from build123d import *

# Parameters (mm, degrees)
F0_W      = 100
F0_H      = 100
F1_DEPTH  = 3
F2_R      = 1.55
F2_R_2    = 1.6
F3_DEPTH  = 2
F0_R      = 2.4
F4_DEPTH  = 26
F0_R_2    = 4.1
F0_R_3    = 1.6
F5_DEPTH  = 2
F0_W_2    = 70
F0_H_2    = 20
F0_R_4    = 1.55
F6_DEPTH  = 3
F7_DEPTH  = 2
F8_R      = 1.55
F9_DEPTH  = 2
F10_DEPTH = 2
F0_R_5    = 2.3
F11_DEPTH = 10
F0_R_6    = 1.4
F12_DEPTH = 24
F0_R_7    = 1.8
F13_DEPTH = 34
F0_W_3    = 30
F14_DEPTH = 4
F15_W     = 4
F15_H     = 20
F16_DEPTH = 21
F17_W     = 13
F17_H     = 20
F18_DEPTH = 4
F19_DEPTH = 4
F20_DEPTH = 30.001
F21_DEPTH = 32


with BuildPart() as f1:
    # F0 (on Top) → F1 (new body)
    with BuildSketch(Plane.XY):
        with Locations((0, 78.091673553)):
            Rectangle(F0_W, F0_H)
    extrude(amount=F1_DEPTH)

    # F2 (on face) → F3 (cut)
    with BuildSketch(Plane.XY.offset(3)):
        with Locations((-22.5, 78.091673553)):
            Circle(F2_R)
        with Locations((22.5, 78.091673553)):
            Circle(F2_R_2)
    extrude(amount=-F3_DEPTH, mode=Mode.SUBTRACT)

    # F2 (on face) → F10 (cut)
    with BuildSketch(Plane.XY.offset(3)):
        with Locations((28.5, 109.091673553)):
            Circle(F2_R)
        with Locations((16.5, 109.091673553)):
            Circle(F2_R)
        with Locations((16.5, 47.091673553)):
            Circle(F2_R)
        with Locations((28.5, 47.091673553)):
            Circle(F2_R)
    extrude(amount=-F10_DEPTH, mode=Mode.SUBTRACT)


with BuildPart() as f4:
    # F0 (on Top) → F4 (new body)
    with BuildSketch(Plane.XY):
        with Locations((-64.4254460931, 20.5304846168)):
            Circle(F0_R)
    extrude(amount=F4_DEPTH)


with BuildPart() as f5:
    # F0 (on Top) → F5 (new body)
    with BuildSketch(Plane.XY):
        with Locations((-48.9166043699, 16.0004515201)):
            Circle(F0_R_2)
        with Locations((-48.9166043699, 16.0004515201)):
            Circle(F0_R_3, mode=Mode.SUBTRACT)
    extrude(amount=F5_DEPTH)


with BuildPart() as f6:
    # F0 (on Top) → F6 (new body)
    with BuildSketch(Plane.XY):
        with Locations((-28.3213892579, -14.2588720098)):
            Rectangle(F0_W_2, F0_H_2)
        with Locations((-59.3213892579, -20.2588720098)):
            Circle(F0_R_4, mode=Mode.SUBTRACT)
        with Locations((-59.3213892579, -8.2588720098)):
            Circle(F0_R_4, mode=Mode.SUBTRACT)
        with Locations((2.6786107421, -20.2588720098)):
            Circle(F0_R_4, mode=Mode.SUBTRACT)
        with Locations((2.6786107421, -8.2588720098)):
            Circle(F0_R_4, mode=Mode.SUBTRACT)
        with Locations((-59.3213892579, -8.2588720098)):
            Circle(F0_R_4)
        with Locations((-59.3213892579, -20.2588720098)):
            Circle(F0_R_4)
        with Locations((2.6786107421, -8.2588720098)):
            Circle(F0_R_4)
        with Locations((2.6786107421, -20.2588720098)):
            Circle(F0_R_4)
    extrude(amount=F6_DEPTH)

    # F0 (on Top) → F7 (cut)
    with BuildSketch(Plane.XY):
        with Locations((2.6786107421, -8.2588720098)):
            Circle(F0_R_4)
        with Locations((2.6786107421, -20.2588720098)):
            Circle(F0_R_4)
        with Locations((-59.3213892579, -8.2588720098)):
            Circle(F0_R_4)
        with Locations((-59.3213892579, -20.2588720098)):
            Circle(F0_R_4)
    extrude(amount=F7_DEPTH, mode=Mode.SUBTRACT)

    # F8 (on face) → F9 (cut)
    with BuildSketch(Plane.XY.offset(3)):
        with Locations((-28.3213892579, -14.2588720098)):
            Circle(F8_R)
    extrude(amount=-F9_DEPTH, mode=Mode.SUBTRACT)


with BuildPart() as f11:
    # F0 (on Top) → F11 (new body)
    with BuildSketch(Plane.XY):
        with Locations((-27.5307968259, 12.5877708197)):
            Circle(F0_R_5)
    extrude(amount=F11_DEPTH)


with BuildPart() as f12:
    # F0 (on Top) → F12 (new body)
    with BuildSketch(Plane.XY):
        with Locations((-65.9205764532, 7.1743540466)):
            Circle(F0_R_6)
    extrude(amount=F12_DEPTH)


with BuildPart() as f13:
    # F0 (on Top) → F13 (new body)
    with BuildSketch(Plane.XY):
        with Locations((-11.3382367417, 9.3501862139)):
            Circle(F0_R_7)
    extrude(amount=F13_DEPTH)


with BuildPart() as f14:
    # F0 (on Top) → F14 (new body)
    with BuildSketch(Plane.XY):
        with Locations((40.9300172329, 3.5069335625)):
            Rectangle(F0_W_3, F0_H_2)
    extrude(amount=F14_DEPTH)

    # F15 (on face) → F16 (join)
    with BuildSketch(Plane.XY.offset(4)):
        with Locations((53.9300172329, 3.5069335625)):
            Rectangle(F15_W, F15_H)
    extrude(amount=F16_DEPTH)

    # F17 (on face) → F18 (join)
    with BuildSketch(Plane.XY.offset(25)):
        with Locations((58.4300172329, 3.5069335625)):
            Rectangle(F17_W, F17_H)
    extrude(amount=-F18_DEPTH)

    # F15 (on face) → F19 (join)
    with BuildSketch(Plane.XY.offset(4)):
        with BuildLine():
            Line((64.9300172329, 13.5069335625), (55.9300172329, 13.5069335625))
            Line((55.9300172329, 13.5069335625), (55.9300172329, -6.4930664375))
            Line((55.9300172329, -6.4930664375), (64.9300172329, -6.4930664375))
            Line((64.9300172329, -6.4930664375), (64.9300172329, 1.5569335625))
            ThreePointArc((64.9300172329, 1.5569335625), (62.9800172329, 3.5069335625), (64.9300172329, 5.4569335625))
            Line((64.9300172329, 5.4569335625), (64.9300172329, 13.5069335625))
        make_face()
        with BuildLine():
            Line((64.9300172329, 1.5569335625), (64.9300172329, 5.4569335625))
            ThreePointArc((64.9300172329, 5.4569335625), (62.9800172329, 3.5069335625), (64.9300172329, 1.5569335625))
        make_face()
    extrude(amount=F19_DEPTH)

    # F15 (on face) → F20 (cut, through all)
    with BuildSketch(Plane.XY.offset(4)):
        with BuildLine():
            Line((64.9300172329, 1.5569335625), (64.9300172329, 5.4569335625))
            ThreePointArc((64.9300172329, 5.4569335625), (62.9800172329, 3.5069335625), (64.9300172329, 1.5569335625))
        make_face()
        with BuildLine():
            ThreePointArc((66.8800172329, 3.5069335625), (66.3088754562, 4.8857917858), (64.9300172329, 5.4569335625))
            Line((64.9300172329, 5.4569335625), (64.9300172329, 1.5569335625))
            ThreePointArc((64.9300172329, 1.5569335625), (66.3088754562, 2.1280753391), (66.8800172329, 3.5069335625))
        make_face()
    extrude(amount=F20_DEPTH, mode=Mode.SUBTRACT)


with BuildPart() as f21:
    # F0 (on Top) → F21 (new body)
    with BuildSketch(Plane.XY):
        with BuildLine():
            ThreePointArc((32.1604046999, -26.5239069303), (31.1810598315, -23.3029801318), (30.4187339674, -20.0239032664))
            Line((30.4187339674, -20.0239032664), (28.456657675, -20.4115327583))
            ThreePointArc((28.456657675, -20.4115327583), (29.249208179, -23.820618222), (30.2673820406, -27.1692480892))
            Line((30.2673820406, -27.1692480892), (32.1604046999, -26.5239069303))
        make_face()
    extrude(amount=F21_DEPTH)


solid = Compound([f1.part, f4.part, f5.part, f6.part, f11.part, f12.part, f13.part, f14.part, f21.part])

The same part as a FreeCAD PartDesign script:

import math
import FreeCAD as App
import Part
import Sketcher
from FreeCAD import Vector

doc = App.newDocument("Part")
body = doc.addObject("PartDesign::Body", "Body")

# Sketch on XY plane
sketch1 = body.newObject("Sketcher::SketchObject", "Sketch")
sketch1.AttachmentSupport = (doc.getObject("XY_Plane"), [""])
sketch1.MapMode = "FlatFace"
sketch1.addGeometry([
    Part.LineSegment(Vector(-50, 128, 0), Vector(-50, 28, 0)),
    Part.LineSegment(Vector(-50, 28, 0), Vector(50, 28, 0)),
    Part.LineSegment(Vector(50, 28, 0), Vector(50, 128, 0)),
    Part.LineSegment(Vector(50, 128, 0), Vector(-50, 128, 0)),
], False)
sketch1.addConstraint([
    Sketcher.Constraint("Coincident", 0, 2, 1, 1),
    Sketcher.Constraint("Coincident", 1, 2, 2, 1),
    Sketcher.Constraint("Coincident", 2, 2, 3, 1),
    Sketcher.Constraint("Coincident", 3, 2, 0, 1),
    Sketcher.Constraint("Vertical", 0),
    Sketcher.Constraint("Horizontal", 1),
    Sketcher.Constraint("Vertical", 2),
    Sketcher.Constraint("Horizontal", 3),
    Sketcher.Constraint("Equal", 3, 0),
    Sketcher.Constraint("DistanceX", 1, 1, 1, 2, 100.0),
    Sketcher.Constraint("DistanceX", 0, 2, -1, 1, 50.0),
    Sketcher.Constraint("DistanceY", -1, 1, 0, 2, 28.091674),
])
pad1 = body.newObject("PartDesign::Pad", "Pad")
pad1.Profile = sketch1
pad1.Length = 3

# Sketch on XY plane
sketch2 = body.newObject("Sketcher::SketchObject", "Sketch001")
sketch2.AttachmentSupport = (doc.getObject("XY_Plane"), [""])
sketch2.MapMode = "FlatFace"
sketch2.AttachmentOffset = App.Placement(Vector(0, 0, 3), App.Rotation())
sketch2.addGeometry([
    Part.Circle(Vector(-22.5, 78.1, 0), Vector(0, 0, 1), 1.6),
    Part.Circle(Vector(22.5, 78.1, 0), Vector(0, 0, 1), 1.6),
], False)
sketch2.addConstraint([
    Sketcher.Constraint("Symmetric", 0, 3, 1, 3, -2),
    Sketcher.Constraint("Diameter", 0, 3.1),
    Sketcher.Constraint("Diameter", 1, 3.2),
    Sketcher.Constraint("DistanceX", 0, 3, 1, 3, 45.0),
    Sketcher.Constraint("DistanceY", -1, 1, 0, 3, 78.091674),
])
pocket1 = body.newObject("PartDesign::Pocket", "Pocket")
pocket1.Profile = sketch2
pocket1.Length = 2

# Sketch on XY plane
sketch3 = body.newObject("Sketcher::SketchObject", "Sketch002")
sketch3.AttachmentSupport = (doc.getObject("XY_Plane"), [""])
sketch3.MapMode = "FlatFace"
sketch3.AttachmentOffset = App.Placement(Vector(0, 0, 3), App.Rotation())
sketch3.addGeometry([
    Part.Circle(Vector(28.5, 109.1, 0), Vector(0, 0, 1), 1.6),
    Part.Circle(Vector(16.5, 109.1, 0), Vector(0, 0, 1), 1.6),
    Part.Circle(Vector(16.5, 47.1, 0), Vector(0, 0, 1), 1.6),
    Part.Circle(Vector(28.5, 47.1, 0), Vector(0, 0, 1), 1.6),
], False)
sketch3.addConstraint([
    Sketcher.Constraint("Equal", 0, 1),
    Sketcher.Constraint("Equal", 1, 2),
    Sketcher.Constraint("Equal", 2, 3),
    Sketcher.Constraint("Horizontal", 0, 3, 1, 3),
    Sketcher.Constraint("Horizontal", 2, 3, 3, 3),
    Sketcher.Constraint("Vertical", 1, 3, 2, 3),
    Sketcher.Constraint("Vertical", 0, 3, 3, 3),
    Sketcher.Constraint("Diameter", 0, 3.1),
    Sketcher.Constraint("DistanceX", 1, 3, 0, 3, 12.0),
    Sketcher.Constraint("DistanceY", 2, 3, 1, 3, 62.0),
    Sketcher.Constraint("DistanceX", -1, 1, 0, 3, 28.5),
    Sketcher.Constraint("DistanceY", -1, 1, 0, 3, 109.091674),
])
pocket2 = body.newObject("PartDesign::Pocket", "Pocket001")
pocket2.Profile = sketch3
pocket2.Length = 2
body2 = doc.addObject("PartDesign::Body", "Body001")

# Sketch on XY plane
sketch4 = body2.newObject("Sketcher::SketchObject", "Sketch003")
sketch4.AttachmentSupport = (doc.getObject("XY_Plane001"), [""])
sketch4.MapMode = "FlatFace"
sketch4.addGeometry(Part.Circle(Vector(-64.4, 20.5, 0), Vector(0, 0, 1), 2.4), False)
sketch4.addConstraint([
    Sketcher.Constraint("Diameter", 0, 4.8),
    Sketcher.Constraint("DistanceX", 0, 3, -1, 1, 64.425446),
    Sketcher.Constraint("DistanceY", -1, 1, 0, 3, 20.530485),
])
pad2 = body2.newObject("PartDesign::Pad", "Pad001")
pad2.Profile = sketch4
pad2.Length = 26
body3 = doc.addObject("PartDesign::Body", "Body002")

# Sketch on XY plane
sketch5 = body3.newObject("Sketcher::SketchObject", "Sketch004")
sketch5.AttachmentSupport = (doc.getObject("XY_Plane002"), [""])
sketch5.MapMode = "FlatFace"
sketch5.addGeometry([
    Part.Circle(Vector(-48.9, 16, 0), Vector(0, 0, 1), 4.1),
    Part.Circle(Vector(-48.9, 16, 0), Vector(0, 0, 1), 1.6),
], False)
sketch5.addConstraint([
    Sketcher.Constraint("Coincident", 1, 3, 0, 3),
    Sketcher.Constraint("Diameter", 0, 8.2),
    Sketcher.Constraint("Diameter", 1, 3.2),
    Sketcher.Constraint("DistanceY", -1, 1, 0, 3, 16.000452),
    Sketcher.Constraint("DistanceX", 0, 3, -1, 1, 48.916604),
])
pad3 = body3.newObject("PartDesign::Pad", "Pad002")
pad3.Profile = sketch5
pad3.Length = 2
body4 = doc.addObject("PartDesign::Body", "Body003")

# Sketch on XY plane
sketch6 = body4.newObject("Sketcher::SketchObject", "Sketch005")
sketch6.AttachmentSupport = (doc.getObject("XY_Plane003"), [""])
sketch6.MapMode = "FlatFace"
sketch6.addGeometry([
    Part.LineSegment(Vector(-63, -4, 0), Vector(-63, -24, 0)),
    Part.LineSegment(Vector(-63, -24, 0), Vector(7, -24, 0)),
    Part.LineSegment(Vector(7, -24, 0), Vector(7, -4, 0)),
    Part.LineSegment(Vector(7, -4, 0), Vector(-63, -4, 0)),
], False)
sketch6.addConstraint([
    Sketcher.Constraint("Coincident", 0, 2, 1, 1),
    Sketcher.Constraint("Coincident", 1, 2, 2, 1),
    Sketcher.Constraint("Coincident", 2, 2, 3, 1),
    Sketcher.Constraint("Coincident", 3, 2, 0, 1),
    Sketcher.Constraint("Vertical", 0),
    Sketcher.Constraint("Horizontal", 1),
    Sketcher.Constraint("Vertical", 2),
    Sketcher.Constraint("Horizontal", 3),
    Sketcher.Constraint("DistanceX", 1, 1, 1, 2, 70.0),
    Sketcher.Constraint("DistanceY", 0, 2, 0, 1, 20.0),
    Sketcher.Constraint("DistanceX", 0, 2, -1, 1, 63.321389),
    Sketcher.Constraint("DistanceY", 0, 2, -1, 1, 24.258872),
])
pad4 = body4.newObject("PartDesign::Pad", "Pad003")
pad4.Profile = sketch6
pad4.Length = 3

# Sketch on XY plane
sketch7 = body4.newObject("Sketcher::SketchObject", "Sketch006")
sketch7.AttachmentSupport = (doc.getObject("XY_Plane003"), [""])
sketch7.MapMode = "FlatFace"
sketch7.addGeometry([
    Part.Circle(Vector(2.7, -8.3, 0), Vector(0, 0, 1), 1.6),
    Part.Circle(Vector(2.7, -20.3, 0), Vector(0, 0, 1), 1.6),
    Part.Circle(Vector(-59.3, -8.3, 0), Vector(0, 0, 1), 1.6),
    Part.Circle(Vector(-59.3, -20.3, 0), Vector(0, 0, 1), 1.6),
], False)
sketch7.addConstraint([
    Sketcher.Constraint("Equal", 0, 1),
    Sketcher.Constraint("Equal", 1, 2),
    Sketcher.Constraint("Equal", 2, 3),
    Sketcher.Constraint("Horizontal", 0, 3, 2, 3),
    Sketcher.Constraint("Horizontal", 1, 3, 3, 3),
    Sketcher.Constraint("Vertical", 0, 3, 1, 3),
    Sketcher.Constraint("Vertical", 2, 3, 3, 3),
    Sketcher.Constraint("Diameter", 0, 3.1),
    Sketcher.Constraint("DistanceY", 1, 3, 0, 3, 12.0),
    Sketcher.Constraint("DistanceX", 2, 3, 0, 3, 62.0),
    Sketcher.Constraint("DistanceX", -1, 1, 0, 3, 2.678611),
    Sketcher.Constraint("DistanceY", 0, 3, -1, 1, 8.258872),
])
pocket3 = body4.newObject("PartDesign::Pocket", "Pocket002")
pocket3.Profile = sketch7
pocket3.Length = 2
pocket3.Reversed = True

# Sketch on XY plane
sketch8 = body4.newObject("Sketcher::SketchObject", "Sketch007")
sketch8.AttachmentSupport = (doc.getObject("XY_Plane003"), [""])
sketch8.MapMode = "FlatFace"
sketch8.AttachmentOffset = App.Placement(Vector(0, 0, 3), App.Rotation())
sketch8.addGeometry(Part.Circle(Vector(-28.3, -14.3, 0), Vector(0, 0, 1), 1.6), False)
sketch8.addConstraint([
    Sketcher.Constraint("Diameter", 0, 3.1),
    Sketcher.Constraint("DistanceX", 0, 3, -1, 1, 28.321389),
    Sketcher.Constraint("DistanceY", 0, 3, -1, 1, 14.258872),
])
pocket4 = body4.newObject("PartDesign::Pocket", "Pocket003")
pocket4.Profile = sketch8
pocket4.Length = 2
body5 = doc.addObject("PartDesign::Body", "Body004")

# Sketch on XY plane
sketch9 = body5.newObject("Sketcher::SketchObject", "Sketch008")
sketch9.AttachmentSupport = (doc.getObject("XY_Plane004"), [""])
sketch9.MapMode = "FlatFace"
sketch9.addGeometry(Part.Circle(Vector(-27.5, 12.6, 0), Vector(0, 0, 1), 2.3), False)
sketch9.addConstraint([
    Sketcher.Constraint("Diameter", 0, 4.6),
    Sketcher.Constraint("DistanceY", -1, 1, 0, 3, 12.587771),
    Sketcher.Constraint("DistanceX", 0, 3, -1, 1, 27.530797),
])
pad5 = body5.newObject("PartDesign::Pad", "Pad004")
pad5.Profile = sketch9
pad5.Length = 10
body6 = doc.addObject("PartDesign::Body", "Body005")

# Sketch on XY plane
sketch10 = body6.newObject("Sketcher::SketchObject", "Sketch009")
sketch10.AttachmentSupport = (doc.getObject("XY_Plane005"), [""])
sketch10.MapMode = "FlatFace"
sketch10.addGeometry(Part.Circle(Vector(-65.9, 7.2, 0), Vector(0, 0, 1), 1.4), False)
sketch10.addConstraint([
    Sketcher.Constraint("Diameter", 0, 2.8),
    Sketcher.Constraint("DistanceX", 0, 3, -1, 1, 65.920576),
    Sketcher.Constraint("DistanceY", -1, 1, 0, 3, 7.174354),
])
pad6 = body6.newObject("PartDesign::Pad", "Pad005")
pad6.Profile = sketch10
pad6.Length = 24
body7 = doc.addObject("PartDesign::Body", "Body006")

# Sketch on XY plane
sketch11 = body7.newObject("Sketcher::SketchObject", "Sketch010")
sketch11.AttachmentSupport = (doc.getObject("XY_Plane006"), [""])
sketch11.MapMode = "FlatFace"
sketch11.addGeometry(Part.Circle(Vector(-11.3, 9.4, 0), Vector(0, 0, 1), 1.8), False)
sketch11.addConstraint([
    Sketcher.Constraint("Diameter", 0, 3.6),
    Sketcher.Constraint("DistanceX", 0, 3, -1, 1, 11.338237),
    Sketcher.Constraint("DistanceY", -1, 1, 0, 3, 9.350186),
])
pad7 = body7.newObject("PartDesign::Pad", "Pad006")
pad7.Profile = sketch11
pad7.Length = 34
body8 = doc.addObject("PartDesign::Body", "Body007")

# Sketch on XY plane
sketch12 = body8.newObject("Sketcher::SketchObject", "Sketch011")
sketch12.AttachmentSupport = (doc.getObject("XY_Plane007"), [""])
sketch12.MapMode = "FlatFace"
sketch12.addGeometry([
    Part.LineSegment(Vector(26, 14, 0), Vector(26, -6, 0)),
    Part.LineSegment(Vector(26, -6, 0), Vector(56, -6, 0)),
    Part.LineSegment(Vector(56, -6, 0), Vector(56, 14, 0)),
    Part.LineSegment(Vector(56, 14, 0), Vector(26, 14, 0)),
], False)
sketch12.addConstraint([
    Sketcher.Constraint("Coincident", 0, 2, 1, 1),
    Sketcher.Constraint("Coincident", 1, 2, 2, 1),
    Sketcher.Constraint("Coincident", 2, 2, 3, 1),
    Sketcher.Constraint("Coincident", 3, 2, 0, 1),
    Sketcher.Constraint("Vertical", 0),
    Sketcher.Constraint("Horizontal", 1),
    Sketcher.Constraint("Vertical", 2),
    Sketcher.Constraint("Horizontal", 3),
    Sketcher.Constraint("DistanceX", 1, 1, 1, 2, 30.0),
    Sketcher.Constraint("DistanceY", 0, 2, 0, 1, 20.0),
    Sketcher.Constraint("DistanceX", -1, 1, 0, 2, 25.930017),
    Sketcher.Constraint("DistanceY", 0, 2, -1, 1, 6.493066),
])
pad8 = body8.newObject("PartDesign::Pad", "Pad007")
pad8.Profile = sketch12
pad8.Length = 4

# Sketch on XY plane
sketch13 = body8.newObject("Sketcher::SketchObject", "Sketch012")
sketch13.AttachmentSupport = (doc.getObject("XY_Plane007"), [""])
sketch13.MapMode = "FlatFace"
sketch13.AttachmentOffset = App.Placement(Vector(0, 0, 4), App.Rotation())
sketch13.addGeometry([
    Part.LineSegment(Vector(51.9, 13.5, 0), Vector(51.9, -6.5, 0)),
    Part.LineSegment(Vector(51.9, -6.5, 0), Vector(55.9, -6.5, 0)),
    Part.LineSegment(Vector(55.9, -6.5, 0), Vector(55.9, 13.5, 0)),
    Part.LineSegment(Vector(55.9, 13.5, 0), Vector(51.9, 13.5, 0)),
], False)
sketch13.addConstraint([
    Sketcher.Constraint("Coincident", 0, 2, 1, 1),
    Sketcher.Constraint("Coincident", 1, 2, 2, 1),
    Sketcher.Constraint("Coincident", 2, 2, 3, 1),
    Sketcher.Constraint("Coincident", 3, 2, 0, 1),
    Sketcher.Constraint("Vertical", 0),
    Sketcher.Constraint("Horizontal", 1),
    Sketcher.Constraint("Vertical", 2),
    Sketcher.Constraint("Horizontal", 3),
    Sketcher.Constraint("DistanceX", 1, 1, 1, 2, 4.0),
    Sketcher.Constraint("DistanceY", 0, 2, 0, 1, 20.0),
    Sketcher.Constraint("DistanceX", -1, 1, 0, 2, 51.930017),
    Sketcher.Constraint("DistanceY", 0, 2, -1, 1, 6.493066),
])
pad9 = body8.newObject("PartDesign::Pad", "Pad008")
pad9.Profile = sketch13
pad9.Length = 21

# Sketch on XY plane
sketch14 = body8.newObject("Sketcher::SketchObject", "Sketch013")
sketch14.AttachmentSupport = (doc.getObject("XY_Plane007"), [""])
sketch14.MapMode = "FlatFace"
sketch14.AttachmentOffset = App.Placement(Vector(0, 0, 25), App.Rotation())
sketch14.addGeometry([
    Part.LineSegment(Vector(52, 14, 0), Vector(52, -6, 0)),
    Part.LineSegment(Vector(52, -6, 0), Vector(65, -6, 0)),
    Part.LineSegment(Vector(65, -6, 0), Vector(65, 14, 0)),
    Part.LineSegment(Vector(65, 14, 0), Vector(52, 14, 0)),
], False)
sketch14.addConstraint([
    Sketcher.Constraint("Coincident", 0, 2, 1, 1),
    Sketcher.Constraint("Coincident", 1, 2, 2, 1),
    Sketcher.Constraint("Coincident", 2, 2, 3, 1),
    Sketcher.Constraint("Coincident", 3, 2, 0, 1),
    Sketcher.Constraint("Vertical", 0),
    Sketcher.Constraint("Horizontal", 1),
    Sketcher.Constraint("Vertical", 2),
    Sketcher.Constraint("Horizontal", 3),
    Sketcher.Constraint("DistanceX", 1, 1, 1, 2, 13.0),
    Sketcher.Constraint("DistanceY", 0, 2, 0, 1, 20.0),
    Sketcher.Constraint("DistanceX", -1, 1, 0, 2, 51.930017),
    Sketcher.Constraint("DistanceY", 0, 2, -1, 1, 6.493066),
])
pad10 = body8.newObject("PartDesign::Pad", "Pad009")
pad10.Profile = sketch14
pad10.Length = 4
pad10.Reversed = True

# Sketch on XY plane
sketch15 = body8.newObject("Sketcher::SketchObject", "Sketch014")
sketch15.AttachmentSupport = (doc.getObject("XY_Plane007"), [""])
sketch15.MapMode = "FlatFace"
sketch15.AttachmentOffset = App.Placement(Vector(0, 0, 4), App.Rotation())
sketch15.addGeometry([
    Part.LineSegment(Vector(65, 14, 0), Vector(56, 14, 0)),
    Part.LineSegment(Vector(56, 14, 0), Vector(56, -6, 0)),
    Part.LineSegment(Vector(56, -6, 0), Vector(65, -6, 0)),
    Part.LineSegment(Vector(65, -6, 0), Vector(65, 14, 0)),
], False)
sketch15.addConstraint([
    Sketcher.Constraint("Coincident", 0, 2, 1, 1),
    Sketcher.Constraint("Coincident", 1, 2, 2, 1),
    Sketcher.Constraint("Coincident", 2, 2, 3, 1),
    Sketcher.Constraint("Coincident", 3, 2, 0, 1),
    Sketcher.Constraint("Horizontal", 0),
    Sketcher.Constraint("Vertical", 1),
    Sketcher.Constraint("Horizontal", 2),
    Sketcher.Constraint("Vertical", 3),
    Sketcher.Constraint("DistanceX", 0, 2, 0, 1, 9.0),
    Sketcher.Constraint("DistanceY", 1, 2, 1, 1, 20.0),
    Sketcher.Constraint("DistanceX", -1, 1, 0, 2, 55.930017),
    Sketcher.Constraint("DistanceY", -1, 1, 0, 2, 13.506934),
])
pad11 = body8.newObject("PartDesign::Pad", "Pad010")
pad11.Profile = sketch15
pad11.Length = 4

# Sketch on XY plane
sketch16 = body8.newObject("Sketcher::SketchObject", "Sketch015")
sketch16.AttachmentSupport = (doc.getObject("XY_Plane007"), [""])
sketch16.MapMode = "FlatFace"
sketch16.AttachmentOffset = App.Placement(Vector(0, 0, 4), App.Rotation())
sketch16.addGeometry([
    Part.ArcOfCircle(Part.Circle(Vector(64.9, 3.5, 0), Vector(0, 0, 1), 1.9), math.radians(90), math.radians(270)),
    Part.ArcOfCircle(Part.Circle(Vector(64.9, 3.5, 0), Vector(0, 0, 1), 1.9), math.radians(-90), math.radians(0)),
    Part.ArcOfCircle(Part.Circle(Vector(64.9, 3.5, 0), Vector(0, 0, 1), 1.9), math.radians(0), math.radians(90)),
], False)
sketch16.addConstraint([
    Sketcher.Constraint("Tangent", 0, 2, 1, 1),
    Sketcher.Constraint("Tangent", 1, 2, 2, 1),
    Sketcher.Constraint("Tangent", 2, 2, 0, 1),
    Sketcher.Constraint("Horizontal", 2, 3, 1, 2),
    Sketcher.Constraint("Vertical", 2, 3, 0, 2),
    Sketcher.Constraint("Vertical", 0, 2, 2, 2),
    Sketcher.Constraint("Radius", 0, 1.95),
    Sketcher.Constraint("DistanceX", -1, 1, 0, 3, 64.930017),
    Sketcher.Constraint("DistanceY", -1, 1, 0, 3, 3.506934),
])
pocket5 = body8.newObject("PartDesign::Pocket", "Pocket004")
pocket5.Profile = sketch16
pocket5.Type = "ThroughAll"
pocket5.Reversed = True
body9 = doc.addObject("PartDesign::Body", "Body008")

# Sketch on XY plane
sketch17 = body9.newObject("Sketcher::SketchObject", "Sketch016")
sketch17.AttachmentSupport = (doc.getObject("XY_Plane008"), [""])
sketch17.MapMode = "FlatFace"
sketch17.addGeometry([
    Part.ArcOfCircle(Part.Circle(Vector(79.9, -10.2, 0), Vector(0, 0, 1), 50.4), math.radians(-168.82), math.radians(-161.18)),
    Part.LineSegment(Vector(30.4, -20, 0), Vector(28.5, -20.4, 0)),
    Part.ArcOfCircle(Part.Circle(Vector(79.9, -10.2, 0), Vector(0, 0, 1), 52.4), math.radians(-168.82), math.radians(-161.18)),
    Part.LineSegment(Vector(30.3, -27.2, 0), Vector(32.2, -26.5, 0)),
], False)
sketch17.addConstraint([
    Sketcher.Constraint("Coincident", 0, 1, 1, 1),
    Sketcher.Constraint("Coincident", 1, 2, 2, 1),
    Sketcher.Constraint("Coincident", 2, 2, 3, 1),
    Sketcher.Constraint("Coincident", 3, 2, 0, 2),
    Sketcher.Constraint("Coincident", 2, 3, 0, 3),
    Sketcher.Constraint("Distance", 1, 2.0),
    Sketcher.Constraint("Radius", 0, 50.444),
    Sketcher.Constraint("DistanceY", 2, 2, -1, 1, 27.169248),
    Sketcher.Constraint("DistanceX", 0, 1, 0, 3, 49.487488),
    Sketcher.Constraint("DistanceY", 1, 2, 0, 1, 0.387629),
    Sketcher.Constraint("DistanceX", 2, 2, 0, 1, 0.151352),
    Sketcher.Constraint("DistanceY", 2, 2, 3, 2, 0.645341),
    Sketcher.Constraint("DistanceX", -1, 1, 0, 3, 79.906222),
])
pad12 = body9.newObject("PartDesign::Pad", "Pad011")
pad12.Profile = sketch17
pad12.Length = 32

doc.recompute()
